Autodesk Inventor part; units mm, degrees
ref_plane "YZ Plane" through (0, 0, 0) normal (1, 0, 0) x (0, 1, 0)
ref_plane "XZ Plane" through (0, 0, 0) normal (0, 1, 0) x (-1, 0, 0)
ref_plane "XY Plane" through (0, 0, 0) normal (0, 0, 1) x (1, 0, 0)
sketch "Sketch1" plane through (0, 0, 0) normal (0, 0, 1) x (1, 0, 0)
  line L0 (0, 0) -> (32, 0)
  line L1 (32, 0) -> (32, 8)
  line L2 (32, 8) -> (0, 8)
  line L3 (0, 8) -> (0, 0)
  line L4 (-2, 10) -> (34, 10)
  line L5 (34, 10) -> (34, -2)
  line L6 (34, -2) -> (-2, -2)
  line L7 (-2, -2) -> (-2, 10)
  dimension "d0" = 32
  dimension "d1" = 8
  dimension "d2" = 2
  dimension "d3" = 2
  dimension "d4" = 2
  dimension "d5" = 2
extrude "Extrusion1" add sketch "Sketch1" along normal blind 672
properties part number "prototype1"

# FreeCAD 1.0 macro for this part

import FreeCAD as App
import Part
import Sketcher

doc = App.newDocument("Part")
body = doc.addObject("PartDesign::Body", "Body")

# Sketch on XY plane
sketch1 = doc.addObject("Sketcher::SketchObject", "Sketch")
body.addObject(sketch1)
sketch1.AttachmentSupport = (doc.XY_Plane, [""])
sketch1.MapMode = "FlatFace"
sketch1.addGeometry([
    Part.LineSegment(App.Vector(34, 10, 0), App.Vector(-2, 10, 0)),  # 0
    Part.LineSegment(App.Vector(-2, 10, 0), App.Vector(-2, -2, 0)),  # 1
    Part.LineSegment(App.Vector(-2, -2, 0), App.Vector(34, -2, 0)),  # 2
    Part.LineSegment(App.Vector(34, -2, 0), App.Vector(34, 10, 0)),  # 3
    Part.LineSegment(App.Vector(32, 0, 0), App.Vector(0, 0, 0)),  # 4
    Part.LineSegment(App.Vector(0, 0, 0), App.Vector(0, 8, 0)),  # 5
    Part.LineSegment(App.Vector(0, 8, 0), App.Vector(32, 8, 0)),  # 6
    Part.LineSegment(App.Vector(32, 8, 0), App.Vector(32, 0, 0)),  # 7
], False)
sketch1.addConstraint([
    Sketcher.Constraint("Coincident", 0, 2, 1, 1),
    Sketcher.Constraint("Coincident", 1, 2, 2, 1),
    Sketcher.Constraint("Coincident", 2, 2, 3, 1),
    Sketcher.Constraint("Coincident", 3, 2, 0, 1),
    Sketcher.Constraint("Coincident", 4, 2, 5, 1),
    Sketcher.Constraint("Coincident", 5, 2, 6, 1),
    Sketcher.Constraint("Coincident", 6, 2, 7, 1),
    Sketcher.Constraint("Coincident", 7, 2, 4, 1),
    Sketcher.Constraint("Horizontal", 0),
    Sketcher.Constraint("Vertical", 1),
    Sketcher.Constraint("Horizontal", 2),
    Sketcher.Constraint("Vertical", 3),
    Sketcher.Constraint("Horizontal", 4),
    Sketcher.Constraint("Vertical", 5),
    Sketcher.Constraint("Horizontal", 6),
    Sketcher.Constraint("Vertical", 7),
    Sketcher.Constraint("Coincident", 4, 2, -1, 1),
    Sketcher.Constraint("DistanceX", 4, 2, 4, 1, 32.0),
    Sketcher.Constraint("DistanceY", 5, 1, 5, 2, 8.0),
    Sketcher.Constraint("DistanceX", 0, 2, -1, 1, 2.0),
    Sketcher.Constraint("DistanceY", 1, 2, -1, 1, 2.0),
    Sketcher.Constraint("DistanceY", 5, 2, 0, 2, 2.0),
    Sketcher.Constraint("DistanceX", 6, 2, 3, 2, 2.0),
])
pad1 = doc.addObject("PartDesign::Pad", "Pad")
body.addObject(pad1)
pad1.Profile = sketch1
pad1.Length = 672

doc.recompute()
